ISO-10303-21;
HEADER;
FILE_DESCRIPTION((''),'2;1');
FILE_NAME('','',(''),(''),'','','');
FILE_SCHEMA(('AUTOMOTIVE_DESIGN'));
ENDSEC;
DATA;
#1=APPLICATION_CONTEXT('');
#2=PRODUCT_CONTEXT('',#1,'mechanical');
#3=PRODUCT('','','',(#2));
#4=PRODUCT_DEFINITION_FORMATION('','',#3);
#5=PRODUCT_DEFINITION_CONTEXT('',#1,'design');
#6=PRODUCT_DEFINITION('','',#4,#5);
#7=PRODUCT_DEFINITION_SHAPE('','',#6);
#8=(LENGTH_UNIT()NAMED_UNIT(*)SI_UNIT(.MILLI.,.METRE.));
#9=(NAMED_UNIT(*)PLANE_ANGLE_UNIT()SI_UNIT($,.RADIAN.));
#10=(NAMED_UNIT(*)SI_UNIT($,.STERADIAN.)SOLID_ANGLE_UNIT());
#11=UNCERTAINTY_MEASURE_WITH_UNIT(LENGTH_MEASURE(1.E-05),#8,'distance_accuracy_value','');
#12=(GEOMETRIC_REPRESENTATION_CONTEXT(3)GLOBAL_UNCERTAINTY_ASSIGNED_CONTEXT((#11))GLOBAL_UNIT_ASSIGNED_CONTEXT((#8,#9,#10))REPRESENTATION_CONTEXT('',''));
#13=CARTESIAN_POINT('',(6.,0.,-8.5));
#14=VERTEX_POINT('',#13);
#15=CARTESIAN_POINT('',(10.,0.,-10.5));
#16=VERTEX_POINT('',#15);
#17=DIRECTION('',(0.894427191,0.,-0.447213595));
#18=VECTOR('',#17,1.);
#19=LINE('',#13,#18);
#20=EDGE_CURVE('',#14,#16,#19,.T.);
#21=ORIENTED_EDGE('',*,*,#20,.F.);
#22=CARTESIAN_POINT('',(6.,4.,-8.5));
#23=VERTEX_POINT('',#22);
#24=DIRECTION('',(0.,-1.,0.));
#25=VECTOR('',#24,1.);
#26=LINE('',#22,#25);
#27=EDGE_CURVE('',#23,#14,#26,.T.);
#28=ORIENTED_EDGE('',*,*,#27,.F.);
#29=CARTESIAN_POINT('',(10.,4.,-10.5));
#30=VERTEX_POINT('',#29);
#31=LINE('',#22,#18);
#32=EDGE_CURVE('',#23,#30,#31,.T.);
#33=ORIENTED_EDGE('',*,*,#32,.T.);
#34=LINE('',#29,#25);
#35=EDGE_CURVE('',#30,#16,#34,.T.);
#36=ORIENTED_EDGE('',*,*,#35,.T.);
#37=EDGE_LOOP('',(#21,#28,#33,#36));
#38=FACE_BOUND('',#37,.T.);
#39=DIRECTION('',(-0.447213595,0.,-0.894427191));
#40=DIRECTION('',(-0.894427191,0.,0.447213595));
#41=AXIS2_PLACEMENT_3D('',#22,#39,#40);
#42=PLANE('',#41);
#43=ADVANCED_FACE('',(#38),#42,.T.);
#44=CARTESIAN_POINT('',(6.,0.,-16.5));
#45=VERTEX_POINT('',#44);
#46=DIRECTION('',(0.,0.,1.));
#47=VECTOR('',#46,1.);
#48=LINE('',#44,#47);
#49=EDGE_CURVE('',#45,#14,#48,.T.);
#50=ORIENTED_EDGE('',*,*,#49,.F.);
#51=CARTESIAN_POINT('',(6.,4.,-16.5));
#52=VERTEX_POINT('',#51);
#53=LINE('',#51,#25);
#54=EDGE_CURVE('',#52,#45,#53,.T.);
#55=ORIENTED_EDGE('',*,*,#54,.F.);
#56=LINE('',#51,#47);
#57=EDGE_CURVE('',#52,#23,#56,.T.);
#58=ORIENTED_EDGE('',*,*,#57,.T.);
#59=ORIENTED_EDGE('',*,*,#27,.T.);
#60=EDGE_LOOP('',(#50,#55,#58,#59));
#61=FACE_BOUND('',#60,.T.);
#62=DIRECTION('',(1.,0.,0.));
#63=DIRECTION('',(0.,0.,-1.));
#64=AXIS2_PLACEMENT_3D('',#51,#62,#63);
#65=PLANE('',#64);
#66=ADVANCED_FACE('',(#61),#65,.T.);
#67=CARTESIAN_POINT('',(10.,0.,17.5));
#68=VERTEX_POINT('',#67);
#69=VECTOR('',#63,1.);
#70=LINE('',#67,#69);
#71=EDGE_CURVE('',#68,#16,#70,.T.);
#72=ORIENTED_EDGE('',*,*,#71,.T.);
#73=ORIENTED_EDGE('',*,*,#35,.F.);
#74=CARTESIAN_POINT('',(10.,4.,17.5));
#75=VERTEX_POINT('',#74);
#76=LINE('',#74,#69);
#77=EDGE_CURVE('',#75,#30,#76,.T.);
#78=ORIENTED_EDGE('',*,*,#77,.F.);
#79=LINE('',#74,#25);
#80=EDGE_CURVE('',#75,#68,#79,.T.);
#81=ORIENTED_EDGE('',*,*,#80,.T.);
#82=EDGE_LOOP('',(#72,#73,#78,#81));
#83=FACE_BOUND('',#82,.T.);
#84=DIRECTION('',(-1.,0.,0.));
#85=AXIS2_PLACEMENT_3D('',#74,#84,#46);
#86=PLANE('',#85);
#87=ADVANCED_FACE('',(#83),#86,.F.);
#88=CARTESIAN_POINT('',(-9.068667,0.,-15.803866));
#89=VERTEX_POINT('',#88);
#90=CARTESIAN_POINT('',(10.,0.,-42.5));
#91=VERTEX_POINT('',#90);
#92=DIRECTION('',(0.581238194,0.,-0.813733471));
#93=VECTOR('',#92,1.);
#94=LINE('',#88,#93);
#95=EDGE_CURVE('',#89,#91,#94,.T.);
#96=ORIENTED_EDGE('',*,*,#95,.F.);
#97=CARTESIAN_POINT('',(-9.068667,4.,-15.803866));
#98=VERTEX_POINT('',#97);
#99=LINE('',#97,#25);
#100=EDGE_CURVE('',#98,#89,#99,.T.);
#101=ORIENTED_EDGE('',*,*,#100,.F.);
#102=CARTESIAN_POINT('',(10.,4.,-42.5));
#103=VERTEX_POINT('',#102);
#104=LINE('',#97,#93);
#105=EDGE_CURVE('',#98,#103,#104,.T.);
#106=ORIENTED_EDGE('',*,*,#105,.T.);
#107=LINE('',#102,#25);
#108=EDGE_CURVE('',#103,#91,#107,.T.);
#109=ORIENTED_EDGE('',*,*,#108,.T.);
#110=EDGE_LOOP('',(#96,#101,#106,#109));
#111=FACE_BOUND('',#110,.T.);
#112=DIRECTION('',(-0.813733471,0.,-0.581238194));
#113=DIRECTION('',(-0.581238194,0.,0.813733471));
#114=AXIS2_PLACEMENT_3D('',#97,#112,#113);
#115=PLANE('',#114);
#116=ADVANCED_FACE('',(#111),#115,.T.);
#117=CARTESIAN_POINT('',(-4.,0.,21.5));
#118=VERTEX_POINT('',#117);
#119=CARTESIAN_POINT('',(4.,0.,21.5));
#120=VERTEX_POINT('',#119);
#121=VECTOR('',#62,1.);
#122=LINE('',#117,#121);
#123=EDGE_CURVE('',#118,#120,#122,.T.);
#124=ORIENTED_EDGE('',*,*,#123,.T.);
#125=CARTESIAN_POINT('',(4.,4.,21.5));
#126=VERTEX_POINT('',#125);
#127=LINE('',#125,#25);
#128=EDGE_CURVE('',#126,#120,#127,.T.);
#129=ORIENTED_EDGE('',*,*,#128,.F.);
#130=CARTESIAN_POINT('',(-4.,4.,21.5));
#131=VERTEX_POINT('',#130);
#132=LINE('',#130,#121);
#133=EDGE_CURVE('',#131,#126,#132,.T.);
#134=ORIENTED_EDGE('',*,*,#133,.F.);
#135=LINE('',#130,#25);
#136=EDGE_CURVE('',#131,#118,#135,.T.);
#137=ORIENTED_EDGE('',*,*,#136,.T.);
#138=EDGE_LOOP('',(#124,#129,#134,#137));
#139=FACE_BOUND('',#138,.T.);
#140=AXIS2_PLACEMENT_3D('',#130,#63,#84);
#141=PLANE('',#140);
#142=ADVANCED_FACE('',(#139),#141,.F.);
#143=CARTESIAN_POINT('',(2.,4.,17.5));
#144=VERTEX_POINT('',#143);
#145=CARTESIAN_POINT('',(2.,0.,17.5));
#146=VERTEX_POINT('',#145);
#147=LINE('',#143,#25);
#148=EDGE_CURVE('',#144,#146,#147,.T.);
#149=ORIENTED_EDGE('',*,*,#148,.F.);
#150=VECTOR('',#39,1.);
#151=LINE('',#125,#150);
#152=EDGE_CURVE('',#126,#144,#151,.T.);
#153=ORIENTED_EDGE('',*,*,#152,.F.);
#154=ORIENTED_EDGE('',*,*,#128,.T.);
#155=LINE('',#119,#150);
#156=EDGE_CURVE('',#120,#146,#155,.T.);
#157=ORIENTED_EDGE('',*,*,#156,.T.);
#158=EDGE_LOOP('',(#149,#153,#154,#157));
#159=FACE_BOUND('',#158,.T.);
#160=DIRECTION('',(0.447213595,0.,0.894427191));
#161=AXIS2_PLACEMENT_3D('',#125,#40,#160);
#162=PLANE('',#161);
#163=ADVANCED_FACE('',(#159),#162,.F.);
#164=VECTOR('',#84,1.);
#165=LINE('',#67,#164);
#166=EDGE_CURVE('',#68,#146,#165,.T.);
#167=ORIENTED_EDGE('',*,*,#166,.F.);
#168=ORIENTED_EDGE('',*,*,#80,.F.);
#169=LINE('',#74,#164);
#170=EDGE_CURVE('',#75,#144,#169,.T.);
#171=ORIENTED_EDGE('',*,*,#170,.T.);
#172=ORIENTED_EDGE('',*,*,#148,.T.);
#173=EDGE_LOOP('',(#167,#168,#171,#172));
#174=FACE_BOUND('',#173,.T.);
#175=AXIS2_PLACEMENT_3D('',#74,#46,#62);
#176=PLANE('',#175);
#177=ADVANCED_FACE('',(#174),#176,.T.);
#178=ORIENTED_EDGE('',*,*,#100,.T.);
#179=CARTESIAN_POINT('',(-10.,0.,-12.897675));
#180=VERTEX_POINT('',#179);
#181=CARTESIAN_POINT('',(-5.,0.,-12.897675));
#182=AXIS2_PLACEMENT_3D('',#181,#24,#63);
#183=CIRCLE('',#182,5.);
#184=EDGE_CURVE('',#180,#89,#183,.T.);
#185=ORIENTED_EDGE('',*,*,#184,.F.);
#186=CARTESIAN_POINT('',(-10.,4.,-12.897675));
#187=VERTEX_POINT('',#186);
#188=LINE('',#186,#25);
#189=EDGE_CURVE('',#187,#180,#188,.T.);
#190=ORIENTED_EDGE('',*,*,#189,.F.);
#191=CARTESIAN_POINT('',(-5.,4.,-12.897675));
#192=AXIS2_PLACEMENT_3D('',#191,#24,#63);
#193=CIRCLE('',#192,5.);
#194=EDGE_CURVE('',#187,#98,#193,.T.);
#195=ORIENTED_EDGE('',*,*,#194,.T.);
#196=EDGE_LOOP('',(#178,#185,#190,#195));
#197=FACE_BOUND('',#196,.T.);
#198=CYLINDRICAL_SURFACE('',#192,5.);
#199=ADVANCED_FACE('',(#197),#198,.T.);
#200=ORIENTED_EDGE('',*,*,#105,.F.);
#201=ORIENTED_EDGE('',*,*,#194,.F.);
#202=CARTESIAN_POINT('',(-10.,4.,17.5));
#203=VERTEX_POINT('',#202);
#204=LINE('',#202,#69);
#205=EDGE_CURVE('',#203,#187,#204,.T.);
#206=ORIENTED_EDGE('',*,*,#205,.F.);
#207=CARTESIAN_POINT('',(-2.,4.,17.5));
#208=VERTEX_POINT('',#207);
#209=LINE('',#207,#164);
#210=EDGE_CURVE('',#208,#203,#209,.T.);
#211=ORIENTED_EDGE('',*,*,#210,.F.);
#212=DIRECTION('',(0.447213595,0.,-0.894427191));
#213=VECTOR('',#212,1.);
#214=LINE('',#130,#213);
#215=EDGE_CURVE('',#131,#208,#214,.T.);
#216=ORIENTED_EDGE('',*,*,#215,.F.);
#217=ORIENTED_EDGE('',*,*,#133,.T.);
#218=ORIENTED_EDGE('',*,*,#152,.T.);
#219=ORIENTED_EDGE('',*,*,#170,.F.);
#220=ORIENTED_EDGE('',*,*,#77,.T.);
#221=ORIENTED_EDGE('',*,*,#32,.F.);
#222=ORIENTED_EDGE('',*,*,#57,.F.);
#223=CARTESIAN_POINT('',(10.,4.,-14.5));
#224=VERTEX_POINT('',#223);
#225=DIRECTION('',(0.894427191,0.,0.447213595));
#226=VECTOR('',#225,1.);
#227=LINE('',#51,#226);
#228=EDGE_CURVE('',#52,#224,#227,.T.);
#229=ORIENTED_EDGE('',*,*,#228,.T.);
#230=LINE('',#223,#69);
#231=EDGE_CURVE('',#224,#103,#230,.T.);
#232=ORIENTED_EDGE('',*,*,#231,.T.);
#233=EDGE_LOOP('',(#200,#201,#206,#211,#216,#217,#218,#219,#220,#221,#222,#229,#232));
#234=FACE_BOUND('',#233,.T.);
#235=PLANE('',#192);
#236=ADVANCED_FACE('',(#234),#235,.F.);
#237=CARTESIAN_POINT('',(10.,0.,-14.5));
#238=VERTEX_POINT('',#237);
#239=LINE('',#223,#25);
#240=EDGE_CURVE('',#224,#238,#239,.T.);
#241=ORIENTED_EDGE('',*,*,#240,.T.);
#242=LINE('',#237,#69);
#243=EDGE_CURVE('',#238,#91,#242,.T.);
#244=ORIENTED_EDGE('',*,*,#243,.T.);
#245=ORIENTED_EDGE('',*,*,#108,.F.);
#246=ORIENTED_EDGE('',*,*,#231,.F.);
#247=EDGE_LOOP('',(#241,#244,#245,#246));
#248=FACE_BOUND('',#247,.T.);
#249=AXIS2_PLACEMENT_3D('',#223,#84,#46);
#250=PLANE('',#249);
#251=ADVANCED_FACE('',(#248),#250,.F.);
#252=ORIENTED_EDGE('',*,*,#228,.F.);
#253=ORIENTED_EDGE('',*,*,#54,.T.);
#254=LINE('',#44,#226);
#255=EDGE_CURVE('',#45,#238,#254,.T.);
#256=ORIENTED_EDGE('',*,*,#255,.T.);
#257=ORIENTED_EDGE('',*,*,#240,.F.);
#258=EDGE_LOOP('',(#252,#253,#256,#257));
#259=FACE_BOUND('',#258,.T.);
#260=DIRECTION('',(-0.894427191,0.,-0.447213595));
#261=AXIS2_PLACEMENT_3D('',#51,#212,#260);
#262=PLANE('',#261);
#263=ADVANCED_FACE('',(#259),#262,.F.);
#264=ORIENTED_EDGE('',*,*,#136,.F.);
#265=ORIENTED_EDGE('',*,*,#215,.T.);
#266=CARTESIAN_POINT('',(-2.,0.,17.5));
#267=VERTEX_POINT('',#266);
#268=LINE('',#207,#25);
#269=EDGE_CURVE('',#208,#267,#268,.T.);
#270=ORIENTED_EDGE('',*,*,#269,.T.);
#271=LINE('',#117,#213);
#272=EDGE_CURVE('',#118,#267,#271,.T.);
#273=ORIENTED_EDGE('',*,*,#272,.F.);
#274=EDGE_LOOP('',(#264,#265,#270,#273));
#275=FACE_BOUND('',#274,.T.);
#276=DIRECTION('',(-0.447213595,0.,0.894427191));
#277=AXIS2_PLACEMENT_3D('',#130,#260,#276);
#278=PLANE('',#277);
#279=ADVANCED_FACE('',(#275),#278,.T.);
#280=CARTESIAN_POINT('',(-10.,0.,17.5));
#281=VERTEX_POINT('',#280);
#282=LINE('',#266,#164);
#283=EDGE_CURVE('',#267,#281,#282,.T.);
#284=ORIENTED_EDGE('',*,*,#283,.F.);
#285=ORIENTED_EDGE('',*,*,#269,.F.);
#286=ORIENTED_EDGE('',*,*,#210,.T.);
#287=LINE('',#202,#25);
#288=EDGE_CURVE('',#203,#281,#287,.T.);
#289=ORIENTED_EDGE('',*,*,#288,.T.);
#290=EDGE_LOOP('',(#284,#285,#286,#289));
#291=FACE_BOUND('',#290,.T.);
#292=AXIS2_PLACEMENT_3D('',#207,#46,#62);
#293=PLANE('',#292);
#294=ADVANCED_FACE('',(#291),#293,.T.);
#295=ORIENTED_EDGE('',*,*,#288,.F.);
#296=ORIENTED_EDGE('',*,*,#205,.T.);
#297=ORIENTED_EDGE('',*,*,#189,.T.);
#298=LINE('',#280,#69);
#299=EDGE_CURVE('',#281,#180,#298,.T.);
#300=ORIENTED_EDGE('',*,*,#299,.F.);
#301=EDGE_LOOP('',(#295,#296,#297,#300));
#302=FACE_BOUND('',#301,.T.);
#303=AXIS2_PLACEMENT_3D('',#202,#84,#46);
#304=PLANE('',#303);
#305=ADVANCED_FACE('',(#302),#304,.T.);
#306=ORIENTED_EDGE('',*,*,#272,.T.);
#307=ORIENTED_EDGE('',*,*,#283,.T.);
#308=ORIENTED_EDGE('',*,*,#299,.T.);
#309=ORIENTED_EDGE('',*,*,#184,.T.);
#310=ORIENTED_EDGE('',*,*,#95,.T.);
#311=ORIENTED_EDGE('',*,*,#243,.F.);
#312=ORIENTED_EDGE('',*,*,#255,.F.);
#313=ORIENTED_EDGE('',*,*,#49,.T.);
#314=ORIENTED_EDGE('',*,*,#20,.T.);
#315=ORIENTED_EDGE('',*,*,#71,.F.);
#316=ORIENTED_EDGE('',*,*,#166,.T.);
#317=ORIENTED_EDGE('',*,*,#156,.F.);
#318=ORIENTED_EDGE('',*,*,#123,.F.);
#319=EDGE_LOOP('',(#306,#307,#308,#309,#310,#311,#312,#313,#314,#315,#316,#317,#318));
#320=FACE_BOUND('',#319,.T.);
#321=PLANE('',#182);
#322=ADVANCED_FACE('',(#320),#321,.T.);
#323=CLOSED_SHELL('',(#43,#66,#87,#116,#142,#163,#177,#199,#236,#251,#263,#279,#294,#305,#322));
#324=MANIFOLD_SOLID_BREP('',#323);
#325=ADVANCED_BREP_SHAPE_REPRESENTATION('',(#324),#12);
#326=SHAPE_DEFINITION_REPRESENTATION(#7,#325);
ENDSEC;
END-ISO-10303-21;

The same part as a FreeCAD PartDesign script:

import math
import FreeCAD as App
import Part
import Sketcher
from FreeCAD import Vector
Q = App.Units.Quantity

doc = App.newDocument("Part")
body = doc.addObject("PartDesign::Body", "Body")

# Sketch on XZ plane
sketch1 = body.newObject("Sketcher::SketchObject", "Sketch")
sketch1.AttachmentSupport = (doc.getObject("XZ_Plane"), [""])
sketch1.MapMode = "FlatFace"
sketch1.addGeometry([
    Part.LineSegment(Vector(2, 17.5, 0), Vector(10, 17.5, 0)),  # 0
    Part.LineSegment(Vector(10, 17.5, 0), Vector(10, -10.5, 0)),  # 1
    Part.LineSegment(Vector(10, -10.5, 0), Vector(6, -8.5, 0)),  # 2
    Part.LineSegment(Vector(6, -8.5, 0), Vector(6, -16.5, 0)),  # 3
    Part.LineSegment(Vector(6, -16.5, 0), Vector(10, -14.5, 0)),  # 4
    Part.LineSegment(Vector(10, -14.5, 0), Vector(10, -42.5, 0)),  # 5
    Part.LineSegment(Vector(10, -42.5, 0), Vector(-9.1, -15.8, 0)),  # 6
    Part.ArcOfCircle(Part.Circle(Vector(-5, -12.9, 0), Vector(0, 0, 1), 5), math.radians(180), math.radians(216)),  # 7
    Part.LineSegment(Vector(-10, -12.9, 0), Vector(-10, 17.5, 0)),  # 8
    Part.LineSegment(Vector(-10, 17.5, 0), Vector(-2, 17.5, 0)),  # 9
    Part.LineSegment(Vector(-2, 17.5, 0), Vector(-4, 21.5, 0)),  # 10
    Part.LineSegment(Vector(-4, 21.5, 0), Vector(4, 21.5, 0)),  # 11
    Part.LineSegment(Vector(4, 21.5, 0), Vector(2, 17.5, 0)),  # 12
], False)
sketch1.addConstraint([
    Sketcher.Constraint("Coincident", 0, 2, 1, 1),
    Sketcher.Constraint("Coincident", 1, 2, 2, 1),
    Sketcher.Constraint("Coincident", 2, 2, 3, 1),
    Sketcher.Constraint("Coincident", 3, 2, 4, 1),
    Sketcher.Constraint("Coincident", 4, 2, 5, 1),
    Sketcher.Constraint("Coincident", 5, 2, 6, 1),
    Sketcher.Constraint("Tangent", 6, 2, 7, 2),
    Sketcher.Constraint("Tangent", 7, 1, 8, 1),
    Sketcher.Constraint("Coincident", 8, 2, 9, 1),
    Sketcher.Constraint("Coincident", 9, 2, 10, 1),
    Sketcher.Constraint("Coincident", 10, 2, 11, 1),
    Sketcher.Constraint("Coincident", 11, 2, 12, 1),
    Sketcher.Constraint("Coincident", 12, 2, 0, 1),
    Sketcher.Constraint("Horizontal", 0),
    Sketcher.Constraint("Vertical", 1),
    Sketcher.Constraint("Vertical", 3),
    Sketcher.Constraint("Vertical", 5),
    Sketcher.Constraint("Vertical", 8),
    Sketcher.Constraint("Horizontal", 9),
    Sketcher.Constraint("Horizontal", 11),
    Sketcher.Constraint("Symmetric", 0, 2, 8, 2, -2),
    Sketcher.Constraint("Perpendicular", 4, 10),
    Sketcher.Constraint("Perpendicular", 2, 12),
    Sketcher.Constraint("Vertical", 1, 2, 4, 2),
    Sketcher.Constraint("Equal", 0, 9),
    Sketcher.Constraint("Equal", 9, 11),
    Sketcher.Constraint("Equal", 11, 3),
    Sketcher.Constraint("Equal", 1, 5),
    Sketcher.Constraint("Equal", 2, 4),
    Sketcher.Constraint("Equal", 4, 10),
    Sketcher.Constraint("Radius", 7, Q("5 mm")),
    Sketcher.Constraint("DistanceX", 0, 1, 0, 2, Q("8 mm")),
    Sketcher.Constraint("DistanceY", 1, 2, 1, 1, Q("28 mm")),
    Sketcher.Constraint("DistanceX", 7, 3, -1, 1, Q("5 mm")),
    Sketcher.Constraint("DistanceX", -1, 1, 2, 2, Q("6 mm")),
    Sketcher.Constraint("DistanceY", -1, 1, 0, 2, Q("17.5 mm")),
    Sketcher.Constraint("DistanceY", 8, 1, 8, 2, Q("30.397675 mm")),
])
pad1 = body.newObject("PartDesign::Pad", "Pad")
pad1.Profile = sketch1
pad1.Length = 4
pad1.Reversed = True

doc.recompute()
